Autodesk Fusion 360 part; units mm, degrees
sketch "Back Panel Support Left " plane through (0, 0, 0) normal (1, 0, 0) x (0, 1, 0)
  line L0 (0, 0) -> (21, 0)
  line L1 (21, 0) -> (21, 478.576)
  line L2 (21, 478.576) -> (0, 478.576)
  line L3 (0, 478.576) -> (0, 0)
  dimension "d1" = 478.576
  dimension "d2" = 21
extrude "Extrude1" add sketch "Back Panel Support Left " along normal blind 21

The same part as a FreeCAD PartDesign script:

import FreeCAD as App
import Part
import Sketcher
from FreeCAD import Vector
Q = App.Units.Quantity

doc = App.newDocument("Part")
body = doc.addObject("PartDesign::Body", "Body")

# Sketch on YZ plane
sketch1 = body.newObject("Sketcher::SketchObject", "Sketch")
sketch1.AttachmentSupport = (doc.getObject("YZ_Plane"), [""])
sketch1.MapMode = "FlatFace"
sketch1.addGeometry(Part.LineSegment(Vector(0, 479, 0), Vector(0, 0, 0)), False)
sketch1.addGeometry(Part.LineSegment(Vector(0, 0, 0), Vector(21, 0, 0)), False)
sketch1.addGeometry(Part.LineSegment(Vector(21, 0, 0), Vector(21, 479, 0)), False)
sketch1.addGeometry(Part.LineSegment(Vector(21, 479, 0), Vector(0, 479, 0)), False)
sketch1.addConstraint(Sketcher.Constraint("Coincident", 0, 2, 1, 1))
sketch1.addConstraint(Sketcher.Constraint("Coincident", 1, 2, 2, 1))
sketch1.addConstraint(Sketcher.Constraint("Coincident", 2, 2, 3, 1))
sketch1.addConstraint(Sketcher.Constraint("Coincident", 3, 2, 0, 1))
sketch1.addConstraint(Sketcher.Constraint("Vertical", 0))
sketch1.addConstraint(Sketcher.Constraint("Horizontal", 1))
sketch1.addConstraint(Sketcher.Constraint("Vertical", 2))
sketch1.addConstraint(Sketcher.Constraint("Horizontal", 3))
sketch1.addConstraint(Sketcher.Constraint("Coincident", 0, 2, -1, 1))
sketch1.addConstraint(Sketcher.Constraint("DistanceX", 1, 1, 1, 2, Q("21 mm")))
sketch1.addConstraint(Sketcher.Constraint("DistanceY", 0, 2, 0, 1, Q("478.576 mm")))
pad1 = body.newObject("PartDesign::Pad", "Pad")
pad1.Profile = sketch1
pad1.Length = 21

doc.recompute()
